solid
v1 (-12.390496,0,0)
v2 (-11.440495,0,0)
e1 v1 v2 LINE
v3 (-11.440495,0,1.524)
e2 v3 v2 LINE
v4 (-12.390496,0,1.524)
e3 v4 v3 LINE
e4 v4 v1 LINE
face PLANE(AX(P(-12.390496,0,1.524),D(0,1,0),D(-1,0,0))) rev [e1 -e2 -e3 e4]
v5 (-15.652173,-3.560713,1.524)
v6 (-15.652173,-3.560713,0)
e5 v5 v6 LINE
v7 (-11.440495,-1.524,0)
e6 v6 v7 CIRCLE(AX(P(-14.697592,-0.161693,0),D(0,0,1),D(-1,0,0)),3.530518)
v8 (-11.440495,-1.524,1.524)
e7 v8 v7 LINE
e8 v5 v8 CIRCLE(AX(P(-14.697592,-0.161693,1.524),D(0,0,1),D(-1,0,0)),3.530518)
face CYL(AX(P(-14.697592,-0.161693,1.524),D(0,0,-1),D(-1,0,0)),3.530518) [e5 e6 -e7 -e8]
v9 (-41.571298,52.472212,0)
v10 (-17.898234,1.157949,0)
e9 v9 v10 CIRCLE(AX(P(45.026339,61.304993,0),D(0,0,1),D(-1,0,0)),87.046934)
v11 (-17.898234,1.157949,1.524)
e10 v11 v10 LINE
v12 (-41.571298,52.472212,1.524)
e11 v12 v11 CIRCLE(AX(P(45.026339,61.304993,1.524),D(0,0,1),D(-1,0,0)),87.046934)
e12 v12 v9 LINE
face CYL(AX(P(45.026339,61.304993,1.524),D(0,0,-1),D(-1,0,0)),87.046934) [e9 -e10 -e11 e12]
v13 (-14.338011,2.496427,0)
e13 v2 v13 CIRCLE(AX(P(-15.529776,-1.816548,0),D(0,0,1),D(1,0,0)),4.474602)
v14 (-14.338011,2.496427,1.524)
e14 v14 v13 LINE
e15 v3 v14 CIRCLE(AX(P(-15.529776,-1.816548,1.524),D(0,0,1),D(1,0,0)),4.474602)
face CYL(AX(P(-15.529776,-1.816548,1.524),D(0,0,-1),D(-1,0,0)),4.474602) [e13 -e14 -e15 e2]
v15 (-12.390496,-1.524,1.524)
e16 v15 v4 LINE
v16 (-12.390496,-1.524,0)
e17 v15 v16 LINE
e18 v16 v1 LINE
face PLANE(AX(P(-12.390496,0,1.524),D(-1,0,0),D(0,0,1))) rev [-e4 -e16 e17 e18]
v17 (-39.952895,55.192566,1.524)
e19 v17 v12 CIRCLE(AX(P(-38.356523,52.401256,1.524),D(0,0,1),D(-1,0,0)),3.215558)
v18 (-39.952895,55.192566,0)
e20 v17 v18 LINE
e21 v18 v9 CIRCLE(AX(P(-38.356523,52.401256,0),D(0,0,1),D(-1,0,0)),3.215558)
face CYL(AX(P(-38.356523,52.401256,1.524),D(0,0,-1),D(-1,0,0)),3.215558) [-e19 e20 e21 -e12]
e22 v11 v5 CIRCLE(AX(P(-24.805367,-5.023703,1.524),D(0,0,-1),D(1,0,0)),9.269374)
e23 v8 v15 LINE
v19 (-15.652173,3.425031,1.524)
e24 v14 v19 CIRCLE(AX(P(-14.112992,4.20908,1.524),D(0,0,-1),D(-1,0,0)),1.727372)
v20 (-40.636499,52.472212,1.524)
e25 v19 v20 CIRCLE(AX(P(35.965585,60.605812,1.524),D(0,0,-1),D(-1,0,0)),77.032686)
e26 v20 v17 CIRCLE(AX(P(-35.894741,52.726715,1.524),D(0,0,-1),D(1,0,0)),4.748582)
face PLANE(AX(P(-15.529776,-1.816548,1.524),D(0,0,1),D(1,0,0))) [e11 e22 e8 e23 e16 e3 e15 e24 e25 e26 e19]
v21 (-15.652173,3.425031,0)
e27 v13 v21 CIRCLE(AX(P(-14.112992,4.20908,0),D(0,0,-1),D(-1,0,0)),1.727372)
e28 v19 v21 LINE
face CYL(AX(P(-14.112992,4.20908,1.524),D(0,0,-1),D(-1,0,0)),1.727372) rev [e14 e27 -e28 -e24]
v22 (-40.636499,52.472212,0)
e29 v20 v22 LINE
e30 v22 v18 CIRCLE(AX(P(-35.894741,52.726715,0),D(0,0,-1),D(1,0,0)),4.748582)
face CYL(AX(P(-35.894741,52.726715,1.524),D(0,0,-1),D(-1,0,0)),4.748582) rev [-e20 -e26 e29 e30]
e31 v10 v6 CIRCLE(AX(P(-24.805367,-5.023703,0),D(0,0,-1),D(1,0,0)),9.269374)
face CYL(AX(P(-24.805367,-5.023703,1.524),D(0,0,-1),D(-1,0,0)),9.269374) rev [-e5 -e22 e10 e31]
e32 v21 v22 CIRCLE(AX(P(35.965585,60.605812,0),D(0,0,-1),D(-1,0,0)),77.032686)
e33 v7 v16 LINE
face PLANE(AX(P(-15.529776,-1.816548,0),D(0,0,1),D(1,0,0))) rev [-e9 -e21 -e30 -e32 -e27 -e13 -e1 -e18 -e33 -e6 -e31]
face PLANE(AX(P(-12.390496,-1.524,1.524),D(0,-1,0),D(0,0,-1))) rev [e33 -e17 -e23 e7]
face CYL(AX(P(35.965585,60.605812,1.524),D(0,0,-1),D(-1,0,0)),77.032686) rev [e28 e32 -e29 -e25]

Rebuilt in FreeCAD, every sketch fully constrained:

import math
import FreeCAD as App
import Part
import Sketcher
from FreeCAD import Vector
Q = App.Units.Quantity

doc = App.newDocument("Part")
body = doc.addObject("PartDesign::Body", "Body")

sketch1 = body.newObject("Sketcher::SketchObject", "Sketch")
sketch1.AttachmentSupport = (doc.getObject("XY_Plane"), [""])
sketch1.MapMode = "FlatFace"
sketch1.addGeometry([
    Part.LineSegment(Vector(-12.4, -1.5, 0), Vector(-12.4, 0, 0)),
    Part.LineSegment(Vector(-12.4, 0, 0), Vector(-11.4, 0, 0)),
    Part.ArcOfCircle(Part.Circle(Vector(-15.5, -1.8, 0), Vector(0, 0, 1), 4.5), math.radians(24), math.radians(75)),
    Part.ArcOfCircle(Part.Circle(Vector(-14.1, 4.2, 0), Vector(0, 0, 1), 1.7), math.radians(-153), math.radians(-97)),
    Part.ArcOfCircle(Part.Circle(Vector(36, 60.6, 0), Vector(0, 0, 1), 77), math.radians(-174), math.radians(-132)),
    Part.ArcOfCircle(Part.Circle(Vector(-35.9, 52.7, 0), Vector(0, 0, 1), 4.7), math.radians(149), math.radians(183)),
    Part.ArcOfCircle(Part.Circle(Vector(-38.4, 52.4, 0), Vector(0, 0, 1), 3.2), math.radians(120), math.radians(179)),
    Part.ArcOfCircle(Part.Circle(Vector(45, 61.3, 0), Vector(0, 0, 1), 87), math.radians(-174), math.radians(-136)),
    Part.ArcOfCircle(Part.Circle(Vector(-24.8, -5, 0), Vector(0, 0, 1), 9.3), math.radians(9), math.radians(42)),
    Part.ArcOfCircle(Part.Circle(Vector(-14.7, -0.2, 0), Vector(0, 0, 1), 3.5), math.radians(-106), math.radians(-23)),
    Part.LineSegment(Vector(-11.4, -1.5, 0), Vector(-12.4, -1.5, 0)),
], False)
sketch1.addConstraint([
    Sketcher.Constraint("Coincident", 0, 2, 1, 1),
    Sketcher.Constraint("Coincident", 1, 2, 2, 1),
    Sketcher.Constraint("Coincident", 2, 2, 3, 2),
    Sketcher.Constraint("Coincident", 3, 1, 4, 2),
    Sketcher.Constraint("Coincident", 4, 1, 5, 2),
    Sketcher.Constraint("Coincident", 5, 1, 6, 1),
    Sketcher.Constraint("Coincident", 6, 2, 7, 1),
    Sketcher.Constraint("Coincident", 7, 2, 8, 2),
    Sketcher.Constraint("Coincident", 8, 1, 9, 1),
    Sketcher.Constraint("Coincident", 9, 2, 10, 1),
    Sketcher.Constraint("Coincident", 10, 2, 0, 1),
    Sketcher.Constraint("Vertical", 0),
    Sketcher.Constraint("Horizontal", 1),
    Sketcher.Constraint("Horizontal", 10),
    Sketcher.Constraint("PointOnObject", 0, 2, -1),
    Sketcher.Constraint("Horizontal", 4, 1, 6, 2),
    Sketcher.Constraint("Vertical", 3, 1, 8, 1),
    Sketcher.Constraint("Vertical", 1, 2, 9, 2),
    Sketcher.Constraint("DistanceY", 0, 1, 0, 2, Q("0.06 in")),
    Sketcher.Constraint("Radius", 2, Q("4.474602 mm")),
    Sketcher.Constraint("Radius", 3, Q("1.727372 mm")),
    Sketcher.Constraint("Radius", 6, Q("3.215558 mm")),
    Sketcher.Constraint("Radius", 9, Q("3.530518 mm")),
    Sketcher.Constraint("DistanceX", 1, 1, 1, 2, Q("0.950001 mm")),
    Sketcher.Constraint("Radius", 4, Q("77.032686 mm")),
    Sketcher.Constraint("Radius", 5, Q("4.748582 mm")),
    Sketcher.Constraint("Radius", 7, Q("87.046934 mm")),
    Sketcher.Constraint("Radius", 8, Q("9.269374 mm")),
    Sketcher.Constraint("DistanceY", 2, 3, 7, 3, Q("2.4851 in")),
    Sketcher.Constraint("DistanceX", 4, 1, -1, 1, Q("40.636499 mm")),
    Sketcher.Constraint("DistanceX", 6, 2, -1, 1, Q("41.571298 mm")),
    Sketcher.Constraint("DistanceX", 9, 3, 3, 3, Q("0.5846 mm")),
    Sketcher.Constraint("DistanceY", 2, 3, -1, 1, Q("1.816548 mm")),
    Sketcher.Constraint("DistanceX", 3, 3, -1, 1, Q("14.112992 mm")),
    Sketcher.Constraint("DistanceY", -1, 1, 3, 3, Q("4.20908 mm")),
    Sketcher.Constraint("DistanceX", 5, 3, -1, 1, Q("35.894741 mm")),
    Sketcher.Constraint("DistanceX", -1, 1, 7, 3, Q("45.026339 mm")),
    Sketcher.Constraint("DistanceX", 2, 2, -1, 1, Q("14.338011 mm")),
    Sketcher.Constraint("DistanceY", -1, 1, 3, 1, Q("3.425031 mm")),
    Sketcher.Constraint("DistanceY", -1, 1, 7, 2, Q("1.157949 mm")),
    Sketcher.Constraint("DistanceX", 6, 3, 5, 3, Q("2.461782 mm")),
])
pad1 = body.newObject("PartDesign::Pad", "Pad")
pad1.Profile = sketch1
pad1.Length = Q("0.06 in")

doc.recompute()
